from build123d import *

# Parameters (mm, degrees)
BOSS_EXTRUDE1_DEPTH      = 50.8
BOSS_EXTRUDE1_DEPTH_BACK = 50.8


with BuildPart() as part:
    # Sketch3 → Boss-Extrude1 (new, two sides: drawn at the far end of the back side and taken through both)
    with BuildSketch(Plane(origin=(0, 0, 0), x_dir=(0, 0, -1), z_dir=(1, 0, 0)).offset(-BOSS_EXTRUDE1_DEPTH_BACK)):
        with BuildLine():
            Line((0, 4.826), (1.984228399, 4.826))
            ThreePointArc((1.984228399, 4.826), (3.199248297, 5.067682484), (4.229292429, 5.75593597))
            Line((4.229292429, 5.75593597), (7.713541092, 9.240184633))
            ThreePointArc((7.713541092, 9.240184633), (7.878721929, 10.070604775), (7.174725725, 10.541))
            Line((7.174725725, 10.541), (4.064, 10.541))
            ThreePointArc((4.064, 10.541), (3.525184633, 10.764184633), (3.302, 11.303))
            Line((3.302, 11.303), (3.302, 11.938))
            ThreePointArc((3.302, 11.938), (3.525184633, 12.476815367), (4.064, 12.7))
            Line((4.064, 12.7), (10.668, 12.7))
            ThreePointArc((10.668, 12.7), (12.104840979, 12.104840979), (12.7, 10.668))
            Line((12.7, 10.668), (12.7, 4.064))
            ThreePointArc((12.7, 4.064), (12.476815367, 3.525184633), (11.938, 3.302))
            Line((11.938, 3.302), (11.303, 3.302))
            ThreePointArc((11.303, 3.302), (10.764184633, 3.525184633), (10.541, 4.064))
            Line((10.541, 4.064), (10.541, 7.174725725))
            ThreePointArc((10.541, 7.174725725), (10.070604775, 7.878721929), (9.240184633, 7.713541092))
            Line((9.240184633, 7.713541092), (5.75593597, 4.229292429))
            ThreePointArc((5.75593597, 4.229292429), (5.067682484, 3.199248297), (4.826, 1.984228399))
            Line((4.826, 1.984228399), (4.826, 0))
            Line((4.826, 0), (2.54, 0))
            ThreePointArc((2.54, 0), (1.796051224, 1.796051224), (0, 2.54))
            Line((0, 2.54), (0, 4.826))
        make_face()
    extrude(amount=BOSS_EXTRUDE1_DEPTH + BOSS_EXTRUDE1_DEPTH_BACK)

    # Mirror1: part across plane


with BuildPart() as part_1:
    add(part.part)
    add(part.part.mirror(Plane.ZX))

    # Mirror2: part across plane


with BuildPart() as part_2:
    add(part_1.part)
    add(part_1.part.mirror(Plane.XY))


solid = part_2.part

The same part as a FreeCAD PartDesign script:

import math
import FreeCAD as App
import Part
import Sketcher
Q = App.Units.Quantity

doc = App.newDocument("Part")
body = doc.addObject("PartDesign::Body", "Body")

sketch1 = doc.addObject("Sketcher::SketchObject", "Sketch")
body.addObject(sketch1)
sketch1.AttachmentSupport = (doc.YZ_Plane, [""])
sketch1.MapMode = "FlatFace"
sketch1.addGeometry(Part.LineSegment(App.Vector(4.8, -2, 0), App.Vector(4.8, 0, 0)), False)
sketch1.addGeometry(Part.LineSegment(App.Vector(4.8, 0, 0), App.Vector(2.5, 0, 0)), False)
sketch1.addGeometry(Part.ArcOfCircle(Part.Circle(App.Vector(0, 0, 0), App.Vector(0, 0, 1), 2.5), math.radians(-90), math.radians(0)), False)
sketch1.addGeometry(Part.LineSegment(App.Vector(0, -2.5, 0), App.Vector(0, -4.8, 0)), False)
sketch1.addGeometry(Part.LineSegment(App.Vector(0, -4.8, 0), App.Vector(2, -4.8, 0)), False)
sketch1.addGeometry(Part.ArcOfCircle(Part.Circle(App.Vector(2, -8, 0), App.Vector(0, 0, 1), 3.2), math.radians(45), math.radians(90)), False)
sketch1.addGeometry(Part.LineSegment(App.Vector(4.2, -5.8, 0), App.Vector(7.7, -9.2, 0)), False)
sketch1.addGeometry(Part.ArcOfCircle(Part.Circle(App.Vector(7.2, -9.8, 0), App.Vector(0, 0, 1), 0.8), math.radians(-90), math.radians(45)), False)
sketch1.addGeometry(Part.LineSegment(App.Vector(7.2, -10.5, 0), App.Vector(4.1, -10.5, 0)), False)
sketch1.addGeometry(Part.ArcOfCircle(Part.Circle(App.Vector(4.1, -11.3, 0), App.Vector(0, 0, 1), 0.8), math.radians(90), math.radians(180)), False)
sketch1.addGeometry(Part.LineSegment(App.Vector(3.3, -11.3, 0), App.Vector(3.3, -11.9, 0)), False)
sketch1.addGeometry(Part.ArcOfCircle(Part.Circle(App.Vector(4.1, -11.9, 0), App.Vector(0, 0, 1), 0.8), math.radians(-180), math.radians(-90)), False)
sketch1.addGeometry(Part.LineSegment(App.Vector(4.1, -12.7, 0), App.Vector(10.7, -12.7, 0)), False)
sketch1.addGeometry(Part.ArcOfCircle(Part.Circle(App.Vector(10.7, -10.7, 0), App.Vector(0, 0, 1), 2), math.radians(-90), math.radians(0)), False)
sketch1.addGeometry(Part.LineSegment(App.Vector(12.7, -10.7, 0), App.Vector(12.7, -4.1, 0)), False)
sketch1.addGeometry(Part.ArcOfCircle(Part.Circle(App.Vector(11.9, -4.1, 0), App.Vector(0, 0, 1), 0.8), math.radians(0), math.radians(90)), False)
sketch1.addGeometry(Part.LineSegment(App.Vector(11.9, -3.3, 0), App.Vector(11.3, -3.3, 0)), False)
sketch1.addGeometry(Part.ArcOfCircle(Part.Circle(App.Vector(11.3, -4.1, 0), App.Vector(0, 0, 1), 0.8), math.radians(90), math.radians(180)), False)
sketch1.addGeometry(Part.LineSegment(App.Vector(10.5, -4.1, 0), App.Vector(10.5, -7.2, 0)), False)
sketch1.addGeometry(Part.ArcOfCircle(Part.Circle(App.Vector(9.8, -7.2, 0), App.Vector(0, 0, 1), 0.8), math.radians(-135), math.radians(0)), False)
sketch1.addGeometry(Part.LineSegment(App.Vector(9.2, -7.7, 0), App.Vector(5.8, -4.2, 0)), False)
sketch1.addGeometry(Part.ArcOfCircle(Part.Circle(App.Vector(8, -2, 0), App.Vector(0, 0, 1), 3.2), math.radians(180), math.radians(225)), False)
sketch1.addConstraint(Sketcher.Constraint("Coincident", 0, 2, 1, 1))
sketch1.addConstraint(Sketcher.Constraint("Coincident", 1, 2, 2, 2))
sketch1.addConstraint(Sketcher.Constraint("Coincident", 2, 1, 3, 1))
sketch1.addConstraint(Sketcher.Constraint("Coincident", 3, 2, 4, 1))
sketch1.addConstraint(Sketcher.Constraint("Tangent", 4, 2, 5, 2))
sketch1.addConstraint(Sketcher.Constraint("Tangent", 5, 1, 6, 1))
sketch1.addConstraint(Sketcher.Constraint("Tangent", 6, 2, 7, 2))
sketch1.addConstraint(Sketcher.Constraint("Tangent", 7, 1, 8, 1))
sketch1.addConstraint(Sketcher.Constraint("Tangent", 8, 2, 9, 1))
sketch1.addConstraint(Sketcher.Constraint("Tangent", 9, 2, 10, 1))
sketch1.addConstraint(Sketcher.Constraint("Tangent", 10, 2, 11, 1))
sketch1.addConstraint(Sketcher.Constraint("Tangent", 11, 2, 12, 1))
sketch1.addConstraint(Sketcher.Constraint("Tangent", 12, 2, 13, 1))
sketch1.addConstraint(Sketcher.Constraint("Tangent", 13, 2, 14, 1))
sketch1.addConstraint(Sketcher.Constraint("Tangent", 14, 2, 15, 1))
sketch1.addConstraint(Sketcher.Constraint("Tangent", 15, 2, 16, 1))
sketch1.addConstraint(Sketcher.Constraint("Tangent", 16, 2, 17, 1))
sketch1.addConstraint(Sketcher.Constraint("Tangent", 17, 2, 18, 1))
sketch1.addConstraint(Sketcher.Constraint("Tangent", 18, 2, 19, 2))
sketch1.addConstraint(Sketcher.Constraint("Tangent", 19, 1, 20, 1))
sketch1.addConstraint(Sketcher.Constraint("Tangent", 20, 2, 21, 2))
sketch1.addConstraint(Sketcher.Constraint("Tangent", 21, 1, 0, 1))
sketch1.addConstraint(Sketcher.Constraint("Vertical", 0))
sketch1.addConstraint(Sketcher.Constraint("Horizontal", 1))
sketch1.addConstraint(Sketcher.Constraint("Vertical", 3))
sketch1.addConstraint(Sketcher.Constraint("Horizontal", 4))
sketch1.addConstraint(Sketcher.Constraint("Horizontal", 8))
sketch1.addConstraint(Sketcher.Constraint("Vertical", 10))
sketch1.addConstraint(Sketcher.Constraint("Horizontal", 12))
sketch1.addConstraint(Sketcher.Constraint("Vertical", 14))
sketch1.addConstraint(Sketcher.Constraint("Horizontal", 16))
sketch1.addConstraint(Sketcher.Constraint("Vertical", 18))
sketch1.addConstraint(Sketcher.Constraint("Coincident", 2, 3, -1, 1))
sketch1.addConstraint(Sketcher.Constraint("Equal", 7, 9))
sketch1.addConstraint(Sketcher.Constraint("Equal", 9, 11))
sketch1.addConstraint(Sketcher.Constraint("Equal", 11, 15))
sketch1.addConstraint(Sketcher.Constraint("Equal", 15, 17))
sketch1.addConstraint(Sketcher.Constraint("Equal", 17, 19))
sketch1.addConstraint(Sketcher.Constraint("Equal", 5, 21))
sketch1.addConstraint(Sketcher.Constraint("PointOnObject", 0, 2, -1))
sketch1.addConstraint(Sketcher.Constraint("PointOnObject", 2, 1, -2))
sketch1.addConstraint(Sketcher.Constraint("Parallel", 6, 20))
sketch1.addConstraint(Sketcher.Constraint("Equal", 4, 0))
sketch1.addConstraint(Sketcher.Constraint("Equal", 1, 3))
sketch1.addConstraint(Sketcher.Constraint("Equal", 16, 10))
sketch1.addConstraint(Sketcher.Constraint("Equal", 12, 14))
sketch1.addConstraint(Sketcher.Constraint("Equal", 8, 18))
sketch1.addConstraint(Sketcher.Constraint("Equal", 6, 20))
sketch1.addConstraint(Sketcher.Constraint("Radius", 2, Q("0.1 in")))
sketch1.addConstraint(Sketcher.Constraint("Radius", 7, Q("0.03 in")))
sketch1.addConstraint(Sketcher.Constraint("Radius", 13, Q("0.08 in")))
sketch1.addConstraint(Sketcher.Constraint("Radius", 5, Q("0.125 in")))
sketch1.addConstraint(Sketcher.Constraint("DistanceX", 1, 2, 1, 1, Q("0.09 in")))
sketch1.addConstraint(Sketcher.Constraint("DistanceX", 12, 1, 12, 2, Q("0.26 in")))
sketch1.addConstraint(Sketcher.Constraint("DistanceY", 11, 2, -1, 1, Q("0.5 in")))
sketch1.addConstraint(Sketcher.Constraint("DistanceY", 8, 2, 5, 3, Q("0.1 in")))
sketch1.addConstraint(Sketcher.Constraint("DistanceX", 4, 1, 4, 2, Q("1.984228 mm")))
pad1 = doc.addObject("PartDesign::Pad", "Pad")
body.addObject(pad1)
pad1.Profile = sketch1
pad1.Type = "TwoLengths"
pad1.Length = Q("2 in")
pad1.Length2 = Q("2 in")
body2 = doc.addObject("PartDesign::Body", "Body001")
doc.recompute()

body2.BaseFeature = body
doc.recompute()

mirroring = doc.addObject("Part::Mirroring", "Mirroring")
mirroring.Source = body
mirroring.Base = App.Vector(0, 0, 0)
mirroring.Normal = App.Vector(0, 1, 0)
body3 = doc.addObject("PartDesign::Body", "Body002")
body3.BaseFeature = mirroring
boolean = doc.addObject("PartDesign::Boolean", "Boolean")
body2.addObject(boolean)
boolean.Type = "Fuse"
boolean.addObjects([body3])
doc.recompute()
body4 = doc.addObject("PartDesign::Body", "Body003")
doc.recompute()

body4.BaseFeature = body2
doc.recompute()

mirroring2 = doc.addObject("Part::Mirroring", "Mirroring001")
mirroring2.Source = body2
mirroring2.Base = App.Vector(0, 0, 0)
mirroring2.Normal = App.Vector(0, 0, 1)
body5 = doc.addObject("PartDesign::Body", "Body004")
body5.BaseFeature = mirroring2
boolean2 = doc.addObject("PartDesign::Boolean", "Boolean001")
body4.addObject(boolean2)
boolean2.Type = "Fuse"
boolean2.addObjects([body5])
doc.recompute()
mirroring.Visibility = False
mirroring2.Visibility = False

doc.recompute()
